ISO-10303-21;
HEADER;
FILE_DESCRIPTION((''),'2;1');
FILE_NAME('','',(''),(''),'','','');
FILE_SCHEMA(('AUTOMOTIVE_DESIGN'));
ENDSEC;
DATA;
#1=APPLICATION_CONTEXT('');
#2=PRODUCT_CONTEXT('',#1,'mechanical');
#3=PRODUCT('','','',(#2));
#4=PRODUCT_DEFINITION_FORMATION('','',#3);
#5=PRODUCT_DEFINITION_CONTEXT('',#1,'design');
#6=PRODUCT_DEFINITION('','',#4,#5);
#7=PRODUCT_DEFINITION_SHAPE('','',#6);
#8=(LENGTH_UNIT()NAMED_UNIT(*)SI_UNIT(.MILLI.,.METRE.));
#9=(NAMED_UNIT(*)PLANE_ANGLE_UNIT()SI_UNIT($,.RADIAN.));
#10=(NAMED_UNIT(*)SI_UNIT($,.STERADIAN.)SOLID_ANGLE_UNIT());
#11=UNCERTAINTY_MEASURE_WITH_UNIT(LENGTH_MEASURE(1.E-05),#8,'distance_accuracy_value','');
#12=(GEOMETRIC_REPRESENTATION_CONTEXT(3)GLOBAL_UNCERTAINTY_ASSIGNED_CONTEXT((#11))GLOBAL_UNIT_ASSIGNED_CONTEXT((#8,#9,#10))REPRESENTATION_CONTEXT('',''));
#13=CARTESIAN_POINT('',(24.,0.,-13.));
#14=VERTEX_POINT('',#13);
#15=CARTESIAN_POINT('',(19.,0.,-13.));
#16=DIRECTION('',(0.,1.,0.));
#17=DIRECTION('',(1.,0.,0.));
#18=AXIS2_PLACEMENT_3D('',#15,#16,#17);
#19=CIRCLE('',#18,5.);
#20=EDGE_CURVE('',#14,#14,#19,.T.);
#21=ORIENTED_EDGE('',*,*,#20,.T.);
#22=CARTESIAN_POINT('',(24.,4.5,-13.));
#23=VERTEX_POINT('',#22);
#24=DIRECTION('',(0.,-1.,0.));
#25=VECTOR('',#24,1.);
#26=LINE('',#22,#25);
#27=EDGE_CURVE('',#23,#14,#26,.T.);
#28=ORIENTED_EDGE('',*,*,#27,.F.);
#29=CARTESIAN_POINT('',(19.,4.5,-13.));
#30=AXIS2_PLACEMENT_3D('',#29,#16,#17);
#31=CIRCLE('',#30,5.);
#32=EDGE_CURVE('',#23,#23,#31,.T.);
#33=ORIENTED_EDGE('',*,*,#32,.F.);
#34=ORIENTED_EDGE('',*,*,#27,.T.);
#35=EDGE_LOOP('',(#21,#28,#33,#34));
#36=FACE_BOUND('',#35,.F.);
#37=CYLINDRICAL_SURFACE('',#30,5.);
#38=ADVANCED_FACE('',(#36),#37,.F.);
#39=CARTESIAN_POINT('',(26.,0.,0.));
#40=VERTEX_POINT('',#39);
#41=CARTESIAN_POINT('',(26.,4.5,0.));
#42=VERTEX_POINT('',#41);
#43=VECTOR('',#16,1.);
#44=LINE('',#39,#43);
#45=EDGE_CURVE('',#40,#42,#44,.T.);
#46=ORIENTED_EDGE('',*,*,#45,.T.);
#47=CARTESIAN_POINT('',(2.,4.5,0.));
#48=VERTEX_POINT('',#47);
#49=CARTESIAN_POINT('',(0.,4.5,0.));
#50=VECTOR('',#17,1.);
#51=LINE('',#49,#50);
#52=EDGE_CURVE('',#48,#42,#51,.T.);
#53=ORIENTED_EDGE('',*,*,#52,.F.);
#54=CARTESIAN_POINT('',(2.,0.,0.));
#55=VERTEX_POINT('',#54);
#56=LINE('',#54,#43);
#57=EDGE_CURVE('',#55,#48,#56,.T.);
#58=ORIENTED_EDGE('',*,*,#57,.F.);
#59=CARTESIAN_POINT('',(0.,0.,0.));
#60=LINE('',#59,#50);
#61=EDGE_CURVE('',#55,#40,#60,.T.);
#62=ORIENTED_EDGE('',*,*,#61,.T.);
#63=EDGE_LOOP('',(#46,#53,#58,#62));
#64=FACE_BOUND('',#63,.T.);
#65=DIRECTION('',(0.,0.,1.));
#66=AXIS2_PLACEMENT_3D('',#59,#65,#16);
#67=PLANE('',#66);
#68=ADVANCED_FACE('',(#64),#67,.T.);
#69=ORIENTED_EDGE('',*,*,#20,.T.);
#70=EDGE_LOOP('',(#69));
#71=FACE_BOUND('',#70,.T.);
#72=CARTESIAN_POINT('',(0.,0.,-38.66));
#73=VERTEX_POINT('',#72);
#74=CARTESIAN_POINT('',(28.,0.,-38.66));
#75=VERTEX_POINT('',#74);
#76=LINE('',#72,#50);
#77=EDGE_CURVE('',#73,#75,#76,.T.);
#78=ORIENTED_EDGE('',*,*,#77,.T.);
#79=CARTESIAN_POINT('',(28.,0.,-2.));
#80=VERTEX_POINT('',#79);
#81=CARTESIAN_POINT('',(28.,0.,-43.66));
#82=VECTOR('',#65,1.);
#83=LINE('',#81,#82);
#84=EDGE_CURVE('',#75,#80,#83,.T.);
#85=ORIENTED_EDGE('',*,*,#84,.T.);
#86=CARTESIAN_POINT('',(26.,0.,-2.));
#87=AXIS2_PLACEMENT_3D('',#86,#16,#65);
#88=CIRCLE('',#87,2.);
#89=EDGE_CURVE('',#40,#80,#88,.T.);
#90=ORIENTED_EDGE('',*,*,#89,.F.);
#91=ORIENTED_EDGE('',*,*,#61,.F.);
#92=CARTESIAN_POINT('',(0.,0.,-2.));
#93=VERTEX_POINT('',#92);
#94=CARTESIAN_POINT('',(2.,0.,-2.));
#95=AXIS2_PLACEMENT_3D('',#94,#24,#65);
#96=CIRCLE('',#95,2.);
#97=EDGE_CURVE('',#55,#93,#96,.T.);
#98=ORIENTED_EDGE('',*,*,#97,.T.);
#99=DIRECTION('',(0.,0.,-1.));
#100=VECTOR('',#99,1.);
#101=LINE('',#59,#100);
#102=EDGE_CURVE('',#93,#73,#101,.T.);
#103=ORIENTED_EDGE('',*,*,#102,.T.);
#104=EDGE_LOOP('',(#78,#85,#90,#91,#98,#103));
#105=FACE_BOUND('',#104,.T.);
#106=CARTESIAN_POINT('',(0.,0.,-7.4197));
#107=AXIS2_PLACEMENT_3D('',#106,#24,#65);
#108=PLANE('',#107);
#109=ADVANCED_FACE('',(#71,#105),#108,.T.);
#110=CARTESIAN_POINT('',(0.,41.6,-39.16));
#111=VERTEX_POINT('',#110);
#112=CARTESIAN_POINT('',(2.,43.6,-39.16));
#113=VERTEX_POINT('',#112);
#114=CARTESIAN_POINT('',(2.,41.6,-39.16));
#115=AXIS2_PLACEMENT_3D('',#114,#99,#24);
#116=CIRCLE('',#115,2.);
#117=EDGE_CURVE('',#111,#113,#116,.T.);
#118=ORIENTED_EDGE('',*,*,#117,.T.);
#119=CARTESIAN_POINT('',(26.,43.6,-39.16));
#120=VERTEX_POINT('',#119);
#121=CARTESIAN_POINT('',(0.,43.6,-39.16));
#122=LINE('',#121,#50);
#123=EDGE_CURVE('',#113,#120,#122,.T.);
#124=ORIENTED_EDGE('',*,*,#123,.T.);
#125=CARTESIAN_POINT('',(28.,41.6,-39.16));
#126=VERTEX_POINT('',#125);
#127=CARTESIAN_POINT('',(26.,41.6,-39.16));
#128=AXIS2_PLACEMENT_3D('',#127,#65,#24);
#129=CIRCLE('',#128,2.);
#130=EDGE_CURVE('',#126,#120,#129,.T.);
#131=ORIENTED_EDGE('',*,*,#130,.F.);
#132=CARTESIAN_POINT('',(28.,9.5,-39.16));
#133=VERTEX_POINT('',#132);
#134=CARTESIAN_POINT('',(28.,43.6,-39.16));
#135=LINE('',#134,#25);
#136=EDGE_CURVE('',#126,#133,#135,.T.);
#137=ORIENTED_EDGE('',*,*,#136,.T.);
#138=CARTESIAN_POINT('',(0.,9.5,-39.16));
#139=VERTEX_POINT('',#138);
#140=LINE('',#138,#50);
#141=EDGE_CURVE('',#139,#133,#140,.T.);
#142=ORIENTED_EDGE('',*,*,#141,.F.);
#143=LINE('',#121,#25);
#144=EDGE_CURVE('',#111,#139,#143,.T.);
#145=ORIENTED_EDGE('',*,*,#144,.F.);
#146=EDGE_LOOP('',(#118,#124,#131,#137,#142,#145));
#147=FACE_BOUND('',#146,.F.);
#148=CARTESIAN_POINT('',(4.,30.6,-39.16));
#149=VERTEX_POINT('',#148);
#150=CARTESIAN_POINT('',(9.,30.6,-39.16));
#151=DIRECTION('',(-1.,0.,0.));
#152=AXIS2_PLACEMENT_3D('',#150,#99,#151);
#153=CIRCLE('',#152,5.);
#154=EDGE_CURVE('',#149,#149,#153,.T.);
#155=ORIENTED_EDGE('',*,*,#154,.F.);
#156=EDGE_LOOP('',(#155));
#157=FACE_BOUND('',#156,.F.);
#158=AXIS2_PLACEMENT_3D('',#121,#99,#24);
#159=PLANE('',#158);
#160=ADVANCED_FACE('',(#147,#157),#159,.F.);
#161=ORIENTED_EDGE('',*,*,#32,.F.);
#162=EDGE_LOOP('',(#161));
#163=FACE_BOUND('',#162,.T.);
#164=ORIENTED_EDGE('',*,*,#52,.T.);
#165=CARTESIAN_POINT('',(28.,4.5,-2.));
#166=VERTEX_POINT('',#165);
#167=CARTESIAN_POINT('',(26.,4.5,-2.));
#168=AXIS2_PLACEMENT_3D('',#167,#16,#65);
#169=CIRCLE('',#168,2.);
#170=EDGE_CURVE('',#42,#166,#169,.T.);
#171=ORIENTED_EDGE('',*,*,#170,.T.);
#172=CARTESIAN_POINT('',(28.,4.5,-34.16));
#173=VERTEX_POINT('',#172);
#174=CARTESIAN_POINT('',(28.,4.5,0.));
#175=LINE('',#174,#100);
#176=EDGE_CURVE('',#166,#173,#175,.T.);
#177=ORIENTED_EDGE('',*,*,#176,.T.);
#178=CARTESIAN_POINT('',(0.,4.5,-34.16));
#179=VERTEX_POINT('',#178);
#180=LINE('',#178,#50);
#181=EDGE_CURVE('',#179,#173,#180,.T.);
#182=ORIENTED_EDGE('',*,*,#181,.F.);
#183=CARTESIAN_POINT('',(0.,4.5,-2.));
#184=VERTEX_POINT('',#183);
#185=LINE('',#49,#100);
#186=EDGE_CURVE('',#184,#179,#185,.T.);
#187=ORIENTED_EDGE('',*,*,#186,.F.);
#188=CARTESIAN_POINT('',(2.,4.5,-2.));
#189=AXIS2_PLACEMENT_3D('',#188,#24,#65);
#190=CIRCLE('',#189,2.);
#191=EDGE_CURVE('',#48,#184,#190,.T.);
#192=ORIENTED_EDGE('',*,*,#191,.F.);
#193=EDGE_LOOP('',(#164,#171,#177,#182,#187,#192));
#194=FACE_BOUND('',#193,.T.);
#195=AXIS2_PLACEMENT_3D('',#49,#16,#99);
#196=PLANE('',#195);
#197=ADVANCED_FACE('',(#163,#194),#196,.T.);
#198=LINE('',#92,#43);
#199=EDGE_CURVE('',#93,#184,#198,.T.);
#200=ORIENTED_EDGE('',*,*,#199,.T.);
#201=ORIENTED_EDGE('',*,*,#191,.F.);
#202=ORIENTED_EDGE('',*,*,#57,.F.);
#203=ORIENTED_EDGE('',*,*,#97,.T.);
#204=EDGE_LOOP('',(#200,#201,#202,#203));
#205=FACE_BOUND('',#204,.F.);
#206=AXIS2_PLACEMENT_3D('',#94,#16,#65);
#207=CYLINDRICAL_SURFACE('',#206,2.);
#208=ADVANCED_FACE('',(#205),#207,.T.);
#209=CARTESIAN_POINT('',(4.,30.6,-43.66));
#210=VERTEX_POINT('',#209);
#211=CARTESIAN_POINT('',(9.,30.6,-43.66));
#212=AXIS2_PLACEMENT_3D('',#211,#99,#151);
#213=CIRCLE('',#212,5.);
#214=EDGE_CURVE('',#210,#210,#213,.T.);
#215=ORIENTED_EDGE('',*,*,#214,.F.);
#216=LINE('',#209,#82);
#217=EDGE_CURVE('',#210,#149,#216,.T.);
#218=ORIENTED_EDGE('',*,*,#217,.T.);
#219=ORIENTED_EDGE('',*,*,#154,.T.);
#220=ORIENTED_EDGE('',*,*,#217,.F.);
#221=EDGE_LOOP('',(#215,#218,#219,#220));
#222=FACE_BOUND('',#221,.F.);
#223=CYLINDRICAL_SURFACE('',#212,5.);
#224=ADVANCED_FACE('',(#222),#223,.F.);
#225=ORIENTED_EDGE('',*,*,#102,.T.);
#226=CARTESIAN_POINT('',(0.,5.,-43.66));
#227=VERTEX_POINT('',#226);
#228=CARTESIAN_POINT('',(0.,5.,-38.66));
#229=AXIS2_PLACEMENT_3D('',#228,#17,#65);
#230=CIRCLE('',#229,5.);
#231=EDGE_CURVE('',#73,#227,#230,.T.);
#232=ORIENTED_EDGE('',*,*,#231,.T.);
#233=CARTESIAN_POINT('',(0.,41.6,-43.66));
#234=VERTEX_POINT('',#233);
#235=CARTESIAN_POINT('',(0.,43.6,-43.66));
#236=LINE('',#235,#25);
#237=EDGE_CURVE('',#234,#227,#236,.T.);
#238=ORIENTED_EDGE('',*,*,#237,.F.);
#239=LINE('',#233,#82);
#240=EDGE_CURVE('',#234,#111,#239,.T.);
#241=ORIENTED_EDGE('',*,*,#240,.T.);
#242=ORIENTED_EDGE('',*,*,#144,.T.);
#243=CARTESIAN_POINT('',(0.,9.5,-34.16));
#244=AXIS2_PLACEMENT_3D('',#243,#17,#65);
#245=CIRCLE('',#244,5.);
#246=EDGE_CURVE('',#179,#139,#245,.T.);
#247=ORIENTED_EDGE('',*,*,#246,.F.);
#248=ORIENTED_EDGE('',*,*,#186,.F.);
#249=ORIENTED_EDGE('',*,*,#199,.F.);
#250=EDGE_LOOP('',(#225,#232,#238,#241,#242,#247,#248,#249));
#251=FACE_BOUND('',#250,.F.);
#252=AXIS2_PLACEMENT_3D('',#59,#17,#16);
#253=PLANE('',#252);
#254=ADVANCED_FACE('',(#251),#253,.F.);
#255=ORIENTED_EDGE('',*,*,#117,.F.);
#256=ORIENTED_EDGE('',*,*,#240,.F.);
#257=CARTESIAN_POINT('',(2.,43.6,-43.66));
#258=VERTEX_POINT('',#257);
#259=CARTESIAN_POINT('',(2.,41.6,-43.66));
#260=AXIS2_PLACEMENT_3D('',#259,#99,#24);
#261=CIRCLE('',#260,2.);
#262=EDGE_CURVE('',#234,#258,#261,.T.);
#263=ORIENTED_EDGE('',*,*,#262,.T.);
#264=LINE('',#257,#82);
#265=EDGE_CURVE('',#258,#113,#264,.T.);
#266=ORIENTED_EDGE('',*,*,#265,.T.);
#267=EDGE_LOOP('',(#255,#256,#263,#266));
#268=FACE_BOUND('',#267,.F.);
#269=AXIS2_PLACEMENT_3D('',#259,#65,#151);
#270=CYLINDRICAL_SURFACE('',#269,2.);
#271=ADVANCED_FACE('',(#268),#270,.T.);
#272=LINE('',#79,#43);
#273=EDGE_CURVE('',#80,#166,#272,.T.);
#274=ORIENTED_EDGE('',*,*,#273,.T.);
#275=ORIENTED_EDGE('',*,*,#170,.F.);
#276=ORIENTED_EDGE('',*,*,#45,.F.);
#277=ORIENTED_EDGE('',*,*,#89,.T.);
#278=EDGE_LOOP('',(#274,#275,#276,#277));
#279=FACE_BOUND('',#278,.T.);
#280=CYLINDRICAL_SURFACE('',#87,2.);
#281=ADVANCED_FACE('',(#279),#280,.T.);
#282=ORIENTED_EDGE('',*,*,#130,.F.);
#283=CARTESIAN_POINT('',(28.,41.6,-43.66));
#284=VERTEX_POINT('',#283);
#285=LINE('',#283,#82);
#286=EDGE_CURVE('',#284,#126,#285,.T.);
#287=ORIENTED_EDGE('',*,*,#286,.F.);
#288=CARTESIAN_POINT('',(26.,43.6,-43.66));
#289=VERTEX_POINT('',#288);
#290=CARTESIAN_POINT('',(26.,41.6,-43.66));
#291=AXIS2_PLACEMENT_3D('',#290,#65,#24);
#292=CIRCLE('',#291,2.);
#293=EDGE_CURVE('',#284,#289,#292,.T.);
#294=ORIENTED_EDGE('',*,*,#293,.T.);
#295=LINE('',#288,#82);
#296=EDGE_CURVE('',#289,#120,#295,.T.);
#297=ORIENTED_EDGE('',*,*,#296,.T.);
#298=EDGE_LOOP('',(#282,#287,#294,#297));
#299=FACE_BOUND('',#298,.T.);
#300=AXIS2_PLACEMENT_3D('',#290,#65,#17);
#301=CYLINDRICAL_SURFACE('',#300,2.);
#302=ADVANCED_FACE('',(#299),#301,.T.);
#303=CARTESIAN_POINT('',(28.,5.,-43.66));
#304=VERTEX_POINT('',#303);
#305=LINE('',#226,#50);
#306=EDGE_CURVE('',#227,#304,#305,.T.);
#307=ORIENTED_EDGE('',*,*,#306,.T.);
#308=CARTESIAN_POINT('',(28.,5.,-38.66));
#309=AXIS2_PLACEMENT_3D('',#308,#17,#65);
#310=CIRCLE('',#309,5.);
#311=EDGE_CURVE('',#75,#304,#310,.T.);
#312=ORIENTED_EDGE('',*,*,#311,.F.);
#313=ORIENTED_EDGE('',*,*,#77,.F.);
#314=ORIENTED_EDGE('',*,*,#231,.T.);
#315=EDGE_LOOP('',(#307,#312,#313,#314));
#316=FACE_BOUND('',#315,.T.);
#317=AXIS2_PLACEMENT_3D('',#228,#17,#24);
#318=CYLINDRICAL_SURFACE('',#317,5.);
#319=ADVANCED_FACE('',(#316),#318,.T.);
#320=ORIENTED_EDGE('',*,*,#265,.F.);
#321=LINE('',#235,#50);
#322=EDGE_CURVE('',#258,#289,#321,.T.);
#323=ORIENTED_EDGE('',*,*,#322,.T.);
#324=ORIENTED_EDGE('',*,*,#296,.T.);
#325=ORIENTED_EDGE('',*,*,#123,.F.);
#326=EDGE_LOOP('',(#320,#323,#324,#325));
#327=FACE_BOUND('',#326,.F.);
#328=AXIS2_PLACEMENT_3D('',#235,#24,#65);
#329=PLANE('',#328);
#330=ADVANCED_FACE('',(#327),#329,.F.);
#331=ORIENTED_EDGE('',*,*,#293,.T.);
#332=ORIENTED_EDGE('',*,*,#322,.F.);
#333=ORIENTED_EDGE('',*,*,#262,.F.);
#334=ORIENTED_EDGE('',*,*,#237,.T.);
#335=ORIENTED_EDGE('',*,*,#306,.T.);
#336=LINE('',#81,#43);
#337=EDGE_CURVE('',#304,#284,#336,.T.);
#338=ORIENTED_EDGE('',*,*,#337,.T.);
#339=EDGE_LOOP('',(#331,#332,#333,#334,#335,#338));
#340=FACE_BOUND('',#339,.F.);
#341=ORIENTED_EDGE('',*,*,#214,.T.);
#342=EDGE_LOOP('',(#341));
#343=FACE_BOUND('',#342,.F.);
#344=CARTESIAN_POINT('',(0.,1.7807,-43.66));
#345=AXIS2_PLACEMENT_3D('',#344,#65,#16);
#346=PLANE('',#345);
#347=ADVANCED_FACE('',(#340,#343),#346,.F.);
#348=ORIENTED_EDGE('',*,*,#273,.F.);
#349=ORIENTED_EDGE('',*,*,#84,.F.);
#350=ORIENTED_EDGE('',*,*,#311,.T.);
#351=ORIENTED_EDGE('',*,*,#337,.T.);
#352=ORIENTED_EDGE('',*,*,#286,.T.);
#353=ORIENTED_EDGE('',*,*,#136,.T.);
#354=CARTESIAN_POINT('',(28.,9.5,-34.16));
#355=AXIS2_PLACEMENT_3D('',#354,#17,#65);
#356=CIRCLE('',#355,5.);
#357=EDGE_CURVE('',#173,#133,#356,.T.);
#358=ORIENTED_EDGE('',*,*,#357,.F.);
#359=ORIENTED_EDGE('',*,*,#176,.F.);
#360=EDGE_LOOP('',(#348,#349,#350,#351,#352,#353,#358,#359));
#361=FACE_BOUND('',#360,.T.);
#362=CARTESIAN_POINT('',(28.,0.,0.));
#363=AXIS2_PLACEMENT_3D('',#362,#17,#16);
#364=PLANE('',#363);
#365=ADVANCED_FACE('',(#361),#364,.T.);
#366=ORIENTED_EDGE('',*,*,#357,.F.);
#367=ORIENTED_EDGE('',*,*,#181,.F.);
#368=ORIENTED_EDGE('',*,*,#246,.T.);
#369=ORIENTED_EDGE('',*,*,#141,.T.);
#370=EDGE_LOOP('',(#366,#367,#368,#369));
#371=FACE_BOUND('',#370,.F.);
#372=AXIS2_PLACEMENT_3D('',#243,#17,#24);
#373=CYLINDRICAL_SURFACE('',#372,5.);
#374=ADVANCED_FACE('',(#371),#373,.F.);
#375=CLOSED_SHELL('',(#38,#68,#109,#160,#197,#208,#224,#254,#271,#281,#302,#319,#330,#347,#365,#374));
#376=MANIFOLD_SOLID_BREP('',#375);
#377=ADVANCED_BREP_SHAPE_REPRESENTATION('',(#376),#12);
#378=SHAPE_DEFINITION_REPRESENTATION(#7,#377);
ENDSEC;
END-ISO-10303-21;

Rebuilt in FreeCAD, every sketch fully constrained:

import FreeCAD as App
import Part
import Sketcher
from FreeCAD import Vector
Q = App.Units.Quantity


def edges_at(feature, points):
    """Names of the edges that pass closest to the given points."""
    edges = feature.Shape.Edges
    near = lambda p: min(range(len(edges)), key=lambda i: edges[i].distToShape(Part.Vertex(*p))[0])
    return sorted({f"Edge{near(p) + 1}" for p in points})


def add_polygon(sketch, points):
    """Adds a closed chain of lines whose ends are joined by coincident constraints."""
    first, n = sketch.GeometryCount, len(points)
    for a, b in zip(points, points[1:] + points[:1]):
        sketch.addGeometry(Part.LineSegment(App.Vector(*a, 0), App.Vector(*b, 0)), False)
    for i in range(n):
        sketch.addConstraint(Sketcher.Constraint("Coincident", first + i, 2, first + (i + 1) % n, 1))

doc = App.newDocument("Part")
params = doc.addObject("Spreadsheet::Sheet", "Params")
for row, (alias, value) in enumerate([
    ("sketch1_width", "4.5 mm"),
    ("sketch1_width2", "43.6 mm"),
    ("sketch1_height", "43.66 mm"),
    ("pad1_length", "28 mm"),
    ("sketch2_diameter", "10 mm"),
    ("sketch3_diameter", "10 mm"),
    ("fillet_radius", "2 mm"),
    ("fillet2_radius", "5 mm"),
], start=1):
    params.set(f"A{row}", alias)
    params.set(f"B{row}", "=" + value)
    params.setAlias(f"B{row}", alias)

body = doc.addObject("PartDesign::Body", "Body")

# Sketch on YZ plane
sketch1 = body.newObject("Sketcher::SketchObject", "Sketch")
sketch1.AttachmentSupport = (doc.getObject("YZ_Plane"), [""])
sketch1.MapMode = "FlatFace"
add_polygon(sketch1, [(4.5, 0), (0, 0), (0, -43.7), (43.6, -43.7), (43.6, -39.2), (4.5, -39.2)])  # lines 0-5
sketch1.addConstraint([
    Sketcher.Constraint("Horizontal", 0),
    Sketcher.Constraint("Vertical", 1),
    Sketcher.Constraint("Horizontal", 2),
    Sketcher.Constraint("Vertical", 3),
    Sketcher.Constraint("Horizontal", 4),
    Sketcher.Constraint("Vertical", 5),
    Sketcher.Constraint("Coincident", 0, 2, -1, 1),
    Sketcher.Constraint("Equal", 0, 3),
    Sketcher.Constraint("DistanceX", 0, 2, 0, 1, Q("4.5 mm")),
    Sketcher.Constraint("DistanceX", 2, 1, 2, 2, Q("43.6 mm")),
    Sketcher.Constraint("DistanceY", 1, 2, 1, 1, Q("43.66 mm")),
])
sketch1.setExpression("Constraints[14]", "Params.sketch1_width")
sketch1.setExpression("Constraints[15]", "Params.sketch1_width2")
sketch1.setExpression("Constraints[16]", "Params.sketch1_height")
pad1 = body.newObject("PartDesign::Pad", "Pad")
pad1.Profile = sketch1
pad1.setExpression("Length", "Params.pad1_length")

# Sketch on XY plane
sketch2 = body.newObject("Sketcher::SketchObject", "Sketch001")
sketch2.AttachmentSupport = (doc.getObject("XY_Plane"), [""])
sketch2.MapMode = "FlatFace"
sketch2.AttachmentOffset = App.Placement(Vector(0, 0, -43.66), App.Rotation())
sketch2.addGeometry(Part.Circle(Vector(9, 31, 0), Vector(0, 0, 1), 5), False)
sketch2.addConstraint([
    Sketcher.Constraint("Diameter", 0, Q("10 mm")),
    Sketcher.Constraint("DistanceX", -1, 1, 0, 3, Q("9 mm")),
    Sketcher.Constraint("DistanceY", -1, 1, 0, 3, Q("30.6 mm")),
])
sketch2.setExpression("Constraints[0]", "Params.sketch2_diameter")
pocket1 = body.newObject("PartDesign::Pocket", "Pocket")
pocket1.Profile = sketch2
pocket1.Type = "UpToFirst"
pocket1.Reversed = True

# Sketch on XZ plane
sketch3 = body.newObject("Sketcher::SketchObject", "Sketch002")
sketch3.AttachmentSupport = (doc.getObject("XZ_Plane"), [""])
sketch3.MapMode = "FlatFace"
sketch3.AttachmentOffset = App.Placement(Vector(0, 0, -4.5), App.Rotation())
sketch3.addGeometry(Part.Circle(Vector(19, -13, 0), Vector(0, 0, 1), 5), False)
sketch3.addConstraint([
    Sketcher.Constraint("Diameter", 0, Q("10 mm")),
    Sketcher.Constraint("DistanceY", 0, 3, -1, 1, Q("13 mm")),
    Sketcher.Constraint("DistanceX", -1, 1, 0, 3, Q("19 mm")),
])
sketch3.setExpression("Constraints[0]", "Params.sketch3_diameter")
pocket2 = body.newObject("PartDesign::Pocket", "Pocket001")
pocket2.Profile = sketch3
pocket2.Type = "UpToFirst"
pocket2.Reversed = True
doc.recompute()

fillet = body.newObject("PartDesign::Fillet", "Fillet")
fillet.Base = (pocket2, edges_at(pocket2, [
    (0, 43.6, -41.41),
    (28, 43.6, -41.41),
    (0, 2.25, 0),
    (28, 2.25, 0),
]))
fillet.setExpression("Radius", "Params.fillet_radius")
doc.recompute()

fillet2 = body.newObject("PartDesign::Fillet", "Fillet001")
fillet2.Base = (fillet, edges_at(fillet, [(14, 0, -43.66), (14, 4.5, -39.16)]))
fillet2.setExpression("Radius", "Params.fillet2_radius")

doc.recompute()
